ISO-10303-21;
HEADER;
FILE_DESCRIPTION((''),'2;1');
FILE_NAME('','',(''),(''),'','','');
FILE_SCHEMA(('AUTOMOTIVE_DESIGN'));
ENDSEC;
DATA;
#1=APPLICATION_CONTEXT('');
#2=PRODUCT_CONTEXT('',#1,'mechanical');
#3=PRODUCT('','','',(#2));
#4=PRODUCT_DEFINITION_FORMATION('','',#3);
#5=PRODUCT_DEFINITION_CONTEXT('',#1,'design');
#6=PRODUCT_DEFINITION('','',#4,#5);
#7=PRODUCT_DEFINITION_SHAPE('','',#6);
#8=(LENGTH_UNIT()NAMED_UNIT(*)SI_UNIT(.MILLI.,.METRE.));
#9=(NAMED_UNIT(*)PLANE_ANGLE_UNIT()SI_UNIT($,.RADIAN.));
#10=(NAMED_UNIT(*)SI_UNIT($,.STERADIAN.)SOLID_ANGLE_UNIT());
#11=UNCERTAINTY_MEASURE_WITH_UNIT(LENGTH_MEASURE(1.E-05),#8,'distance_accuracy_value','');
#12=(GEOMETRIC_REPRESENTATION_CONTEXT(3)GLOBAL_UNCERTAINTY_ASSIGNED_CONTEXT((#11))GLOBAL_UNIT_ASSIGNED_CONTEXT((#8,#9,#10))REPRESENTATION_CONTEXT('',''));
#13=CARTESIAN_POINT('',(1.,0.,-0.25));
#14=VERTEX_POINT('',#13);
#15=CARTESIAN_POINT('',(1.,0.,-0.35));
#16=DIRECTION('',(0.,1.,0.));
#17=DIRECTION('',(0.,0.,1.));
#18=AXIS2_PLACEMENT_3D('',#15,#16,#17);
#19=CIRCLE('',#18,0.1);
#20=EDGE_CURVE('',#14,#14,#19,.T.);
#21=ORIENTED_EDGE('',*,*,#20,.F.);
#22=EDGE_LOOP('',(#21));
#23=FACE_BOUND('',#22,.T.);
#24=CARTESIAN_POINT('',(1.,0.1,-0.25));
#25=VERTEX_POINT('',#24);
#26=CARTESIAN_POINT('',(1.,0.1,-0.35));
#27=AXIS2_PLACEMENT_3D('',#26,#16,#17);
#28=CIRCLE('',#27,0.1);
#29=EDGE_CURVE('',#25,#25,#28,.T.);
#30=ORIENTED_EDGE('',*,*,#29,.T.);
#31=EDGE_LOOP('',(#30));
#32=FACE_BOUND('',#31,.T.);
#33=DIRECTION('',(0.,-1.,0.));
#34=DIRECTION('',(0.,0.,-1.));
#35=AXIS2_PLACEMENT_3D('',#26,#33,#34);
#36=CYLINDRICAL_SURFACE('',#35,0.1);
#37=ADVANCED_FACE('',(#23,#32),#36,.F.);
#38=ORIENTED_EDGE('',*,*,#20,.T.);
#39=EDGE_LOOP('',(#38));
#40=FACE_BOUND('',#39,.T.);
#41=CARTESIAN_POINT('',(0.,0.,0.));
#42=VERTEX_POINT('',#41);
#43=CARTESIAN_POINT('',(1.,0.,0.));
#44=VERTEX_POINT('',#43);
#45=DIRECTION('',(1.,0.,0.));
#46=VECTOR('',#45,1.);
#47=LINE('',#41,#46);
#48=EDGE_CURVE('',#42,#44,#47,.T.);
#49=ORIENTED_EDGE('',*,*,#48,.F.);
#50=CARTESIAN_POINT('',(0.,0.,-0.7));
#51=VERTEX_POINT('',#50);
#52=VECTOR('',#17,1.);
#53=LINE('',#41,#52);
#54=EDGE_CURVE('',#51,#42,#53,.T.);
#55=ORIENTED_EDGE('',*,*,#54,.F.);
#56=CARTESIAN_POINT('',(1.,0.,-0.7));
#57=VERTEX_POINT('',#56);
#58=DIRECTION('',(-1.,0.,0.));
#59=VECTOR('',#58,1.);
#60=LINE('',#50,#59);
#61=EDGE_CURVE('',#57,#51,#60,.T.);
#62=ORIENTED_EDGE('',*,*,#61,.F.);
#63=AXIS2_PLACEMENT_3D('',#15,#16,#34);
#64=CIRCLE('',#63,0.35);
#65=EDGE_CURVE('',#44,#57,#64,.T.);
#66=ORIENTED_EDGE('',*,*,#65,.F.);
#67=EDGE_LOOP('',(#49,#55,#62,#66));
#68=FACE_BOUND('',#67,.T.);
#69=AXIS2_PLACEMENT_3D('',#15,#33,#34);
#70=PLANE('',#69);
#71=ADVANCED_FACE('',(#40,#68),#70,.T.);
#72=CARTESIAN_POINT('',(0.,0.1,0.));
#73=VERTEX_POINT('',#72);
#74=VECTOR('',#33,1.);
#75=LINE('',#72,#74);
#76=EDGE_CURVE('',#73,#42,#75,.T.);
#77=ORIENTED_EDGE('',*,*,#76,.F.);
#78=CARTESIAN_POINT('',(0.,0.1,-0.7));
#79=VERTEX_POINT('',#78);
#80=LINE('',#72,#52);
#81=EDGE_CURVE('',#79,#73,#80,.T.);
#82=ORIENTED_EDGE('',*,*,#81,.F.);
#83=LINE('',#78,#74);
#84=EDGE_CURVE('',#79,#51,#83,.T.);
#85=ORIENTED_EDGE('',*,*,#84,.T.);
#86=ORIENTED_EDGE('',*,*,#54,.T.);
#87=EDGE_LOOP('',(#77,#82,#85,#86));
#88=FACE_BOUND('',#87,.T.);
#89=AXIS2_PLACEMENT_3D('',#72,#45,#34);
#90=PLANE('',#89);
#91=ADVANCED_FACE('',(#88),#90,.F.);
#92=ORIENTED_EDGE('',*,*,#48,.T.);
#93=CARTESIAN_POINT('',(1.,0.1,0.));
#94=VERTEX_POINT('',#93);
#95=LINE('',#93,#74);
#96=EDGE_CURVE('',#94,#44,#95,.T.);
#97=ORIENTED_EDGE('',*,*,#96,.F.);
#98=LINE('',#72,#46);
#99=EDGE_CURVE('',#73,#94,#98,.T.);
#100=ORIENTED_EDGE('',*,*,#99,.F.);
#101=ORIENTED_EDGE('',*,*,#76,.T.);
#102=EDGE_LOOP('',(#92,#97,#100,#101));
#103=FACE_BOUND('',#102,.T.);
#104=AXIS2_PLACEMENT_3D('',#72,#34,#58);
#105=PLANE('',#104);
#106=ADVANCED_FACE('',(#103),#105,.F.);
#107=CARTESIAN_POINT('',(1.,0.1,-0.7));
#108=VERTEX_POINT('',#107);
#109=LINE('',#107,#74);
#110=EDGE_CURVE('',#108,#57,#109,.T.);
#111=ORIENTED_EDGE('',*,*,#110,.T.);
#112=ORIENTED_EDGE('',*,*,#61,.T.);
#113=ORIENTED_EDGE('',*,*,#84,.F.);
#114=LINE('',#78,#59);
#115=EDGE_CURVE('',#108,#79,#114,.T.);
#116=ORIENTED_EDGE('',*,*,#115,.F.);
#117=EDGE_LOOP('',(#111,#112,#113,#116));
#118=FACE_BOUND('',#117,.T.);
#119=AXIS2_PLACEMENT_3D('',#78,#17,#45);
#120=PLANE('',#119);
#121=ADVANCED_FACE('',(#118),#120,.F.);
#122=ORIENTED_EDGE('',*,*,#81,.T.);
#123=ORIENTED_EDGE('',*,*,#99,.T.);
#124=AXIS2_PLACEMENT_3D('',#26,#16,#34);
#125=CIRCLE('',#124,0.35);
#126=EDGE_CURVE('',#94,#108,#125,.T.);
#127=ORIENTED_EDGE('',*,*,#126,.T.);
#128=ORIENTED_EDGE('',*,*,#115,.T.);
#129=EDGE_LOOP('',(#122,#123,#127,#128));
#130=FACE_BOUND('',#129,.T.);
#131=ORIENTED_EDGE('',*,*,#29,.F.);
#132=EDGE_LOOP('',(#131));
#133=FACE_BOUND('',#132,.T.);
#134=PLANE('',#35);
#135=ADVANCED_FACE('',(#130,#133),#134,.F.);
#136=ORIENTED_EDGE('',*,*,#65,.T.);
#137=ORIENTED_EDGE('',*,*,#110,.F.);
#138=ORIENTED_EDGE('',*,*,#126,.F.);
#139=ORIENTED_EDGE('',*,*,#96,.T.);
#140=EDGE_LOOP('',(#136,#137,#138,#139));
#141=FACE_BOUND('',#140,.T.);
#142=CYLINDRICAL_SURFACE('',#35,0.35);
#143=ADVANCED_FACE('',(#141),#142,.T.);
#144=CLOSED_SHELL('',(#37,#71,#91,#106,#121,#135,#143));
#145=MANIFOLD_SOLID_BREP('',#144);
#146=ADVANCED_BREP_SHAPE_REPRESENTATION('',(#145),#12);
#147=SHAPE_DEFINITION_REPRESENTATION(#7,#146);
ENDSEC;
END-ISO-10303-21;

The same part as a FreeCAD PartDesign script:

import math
import FreeCAD as App
import Part
import Sketcher

doc = App.newDocument("Part")
body = doc.addObject("PartDesign::Body", "Body")

# Sketch on XZ plane
sketch1 = body.newObject("Sketcher::SketchObject", "Sketch")
sketch1.AttachmentSupport = (doc.getObject("XZ_Plane"), [""])
sketch1.MapMode = "FlatFace"
sketch1.addGeometry([
    Part.LineSegment(App.Vector(0, -0.7, 0), App.Vector(0, 0, 0)),  # 0
    Part.LineSegment(App.Vector(0, 0, 0), App.Vector(1, 0, 0)),  # 1
    Part.ArcOfCircle(Part.Circle(App.Vector(1, -0.35, 0), App.Vector(0, 0, 1), 0.35), math.radians(-90), math.radians(90)),  # 2
    Part.LineSegment(App.Vector(1, -0.7, 0), App.Vector(0, -0.7, 0)),  # 3
    Part.Circle(App.Vector(1, -0.35, 0), App.Vector(0, 0, 1), 0.1),  # 4
], False)
sketch1.addConstraint([
    Sketcher.Constraint("Coincident", 0, 2, 1, 1),
    Sketcher.Constraint("Tangent", 1, 2, 2, 2),
    Sketcher.Constraint("Tangent", 2, 1, 3, 1),
    Sketcher.Constraint("Coincident", 3, 2, 0, 1),
    Sketcher.Constraint("Vertical", 0),
    Sketcher.Constraint("Horizontal", 1),
    Sketcher.Constraint("Horizontal", 3),
    Sketcher.Constraint("Coincident", 0, 2, -1, 1),
    Sketcher.Constraint("Coincident", 4, 3, 2, 3),
    Sketcher.Constraint("Diameter", 4, 0.2),
    Sketcher.Constraint("DistanceX", 1, 1, 1, 2, 1.0),
    Sketcher.Constraint("Radius", 2, 0.35),
])
pad1 = body.newObject("PartDesign::Pad", "Pad")
pad1.Profile = sketch1
pad1.Length = 0.1
pad1.Reversed = True

doc.recompute()
